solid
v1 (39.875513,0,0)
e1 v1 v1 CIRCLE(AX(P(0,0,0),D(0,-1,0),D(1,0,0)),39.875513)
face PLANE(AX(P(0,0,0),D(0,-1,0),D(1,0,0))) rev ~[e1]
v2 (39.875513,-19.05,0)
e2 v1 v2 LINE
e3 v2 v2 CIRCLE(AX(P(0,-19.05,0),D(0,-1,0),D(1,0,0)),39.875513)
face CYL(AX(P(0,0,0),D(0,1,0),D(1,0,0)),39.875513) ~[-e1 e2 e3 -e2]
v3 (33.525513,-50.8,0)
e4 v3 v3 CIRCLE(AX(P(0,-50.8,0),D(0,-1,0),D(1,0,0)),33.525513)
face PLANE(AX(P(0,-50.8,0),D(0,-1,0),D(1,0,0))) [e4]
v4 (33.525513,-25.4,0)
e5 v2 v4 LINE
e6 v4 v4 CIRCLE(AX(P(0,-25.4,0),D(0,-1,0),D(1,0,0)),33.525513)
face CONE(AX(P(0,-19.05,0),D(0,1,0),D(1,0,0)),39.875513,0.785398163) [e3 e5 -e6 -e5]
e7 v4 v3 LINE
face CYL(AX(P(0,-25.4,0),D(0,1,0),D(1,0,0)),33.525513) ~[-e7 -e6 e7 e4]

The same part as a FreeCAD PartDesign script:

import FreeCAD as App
import Part
import Sketcher
Q = App.Units.Quantity


def edges_at(feature, points):
    """Names of the edges that pass closest to the given points."""
    edges = feature.Shape.Edges
    near = lambda p: min(range(len(edges)), key=lambda i: edges[i].distToShape(Part.Vertex(*p))[0])
    return sorted({f"Edge{near(p) + 1}" for p in points})

doc = App.newDocument("Part")
body = doc.addObject("PartDesign::Body", "Body")

# Sketch on XZ plane
sketch1 = doc.addObject("Sketcher::SketchObject", "Sketch")
body.addObject(sketch1)
sketch1.AttachmentSupport = (doc.XZ_Plane, [""])
sketch1.MapMode = "FlatFace"
sketch1.addGeometry(Part.Circle(App.Vector(0, 0, 0), App.Vector(0, 0, 1), 40), False)
sketch1.addConstraint(Sketcher.Constraint("Coincident", 0, 3, -1, 1))
sketch1.addConstraint(Sketcher.Constraint("Diameter", 0, 79.751026))
pad1 = doc.addObject("PartDesign::Pad", "Pad")
body.addObject(pad1)
pad1.Profile = sketch1
pad1.Length = Q("1 in")
doc.recompute()

chamfer = doc.addObject("PartDesign::Chamfer", "Chamfer")
body.addObject(chamfer)
chamfer.Base = (pad1, edges_at(pad1, [(-39.876, -25.4, 0)]))
chamfer.Size = Q("0.25 in")

# Sketch on XZ plane
sketch2 = doc.addObject("Sketcher::SketchObject", "Sketch001")
body.addObject(sketch2)
sketch2.AttachmentSupport = (doc.XZ_Plane, [""])
sketch2.MapMode = "FlatFace"
sketch2.AttachmentOffset = App.Placement(App.Vector(0, 0, 1 * 25.4), App.Rotation())
sketch2.addGeometry(Part.Circle(App.Vector(0, 0, 0), App.Vector(0, 0, 1), 34), False)
sketch2.addConstraint(Sketcher.Constraint("Coincident", 0, 3, -1, 1))
sketch2.addConstraint(Sketcher.Constraint("Diameter", 0, 67.051026))
pad2 = doc.addObject("PartDesign::Pad", "Pad001")
body.addObject(pad2)
pad2.Profile = sketch2
pad2.Length = Q("1 in")

doc.recompute()
